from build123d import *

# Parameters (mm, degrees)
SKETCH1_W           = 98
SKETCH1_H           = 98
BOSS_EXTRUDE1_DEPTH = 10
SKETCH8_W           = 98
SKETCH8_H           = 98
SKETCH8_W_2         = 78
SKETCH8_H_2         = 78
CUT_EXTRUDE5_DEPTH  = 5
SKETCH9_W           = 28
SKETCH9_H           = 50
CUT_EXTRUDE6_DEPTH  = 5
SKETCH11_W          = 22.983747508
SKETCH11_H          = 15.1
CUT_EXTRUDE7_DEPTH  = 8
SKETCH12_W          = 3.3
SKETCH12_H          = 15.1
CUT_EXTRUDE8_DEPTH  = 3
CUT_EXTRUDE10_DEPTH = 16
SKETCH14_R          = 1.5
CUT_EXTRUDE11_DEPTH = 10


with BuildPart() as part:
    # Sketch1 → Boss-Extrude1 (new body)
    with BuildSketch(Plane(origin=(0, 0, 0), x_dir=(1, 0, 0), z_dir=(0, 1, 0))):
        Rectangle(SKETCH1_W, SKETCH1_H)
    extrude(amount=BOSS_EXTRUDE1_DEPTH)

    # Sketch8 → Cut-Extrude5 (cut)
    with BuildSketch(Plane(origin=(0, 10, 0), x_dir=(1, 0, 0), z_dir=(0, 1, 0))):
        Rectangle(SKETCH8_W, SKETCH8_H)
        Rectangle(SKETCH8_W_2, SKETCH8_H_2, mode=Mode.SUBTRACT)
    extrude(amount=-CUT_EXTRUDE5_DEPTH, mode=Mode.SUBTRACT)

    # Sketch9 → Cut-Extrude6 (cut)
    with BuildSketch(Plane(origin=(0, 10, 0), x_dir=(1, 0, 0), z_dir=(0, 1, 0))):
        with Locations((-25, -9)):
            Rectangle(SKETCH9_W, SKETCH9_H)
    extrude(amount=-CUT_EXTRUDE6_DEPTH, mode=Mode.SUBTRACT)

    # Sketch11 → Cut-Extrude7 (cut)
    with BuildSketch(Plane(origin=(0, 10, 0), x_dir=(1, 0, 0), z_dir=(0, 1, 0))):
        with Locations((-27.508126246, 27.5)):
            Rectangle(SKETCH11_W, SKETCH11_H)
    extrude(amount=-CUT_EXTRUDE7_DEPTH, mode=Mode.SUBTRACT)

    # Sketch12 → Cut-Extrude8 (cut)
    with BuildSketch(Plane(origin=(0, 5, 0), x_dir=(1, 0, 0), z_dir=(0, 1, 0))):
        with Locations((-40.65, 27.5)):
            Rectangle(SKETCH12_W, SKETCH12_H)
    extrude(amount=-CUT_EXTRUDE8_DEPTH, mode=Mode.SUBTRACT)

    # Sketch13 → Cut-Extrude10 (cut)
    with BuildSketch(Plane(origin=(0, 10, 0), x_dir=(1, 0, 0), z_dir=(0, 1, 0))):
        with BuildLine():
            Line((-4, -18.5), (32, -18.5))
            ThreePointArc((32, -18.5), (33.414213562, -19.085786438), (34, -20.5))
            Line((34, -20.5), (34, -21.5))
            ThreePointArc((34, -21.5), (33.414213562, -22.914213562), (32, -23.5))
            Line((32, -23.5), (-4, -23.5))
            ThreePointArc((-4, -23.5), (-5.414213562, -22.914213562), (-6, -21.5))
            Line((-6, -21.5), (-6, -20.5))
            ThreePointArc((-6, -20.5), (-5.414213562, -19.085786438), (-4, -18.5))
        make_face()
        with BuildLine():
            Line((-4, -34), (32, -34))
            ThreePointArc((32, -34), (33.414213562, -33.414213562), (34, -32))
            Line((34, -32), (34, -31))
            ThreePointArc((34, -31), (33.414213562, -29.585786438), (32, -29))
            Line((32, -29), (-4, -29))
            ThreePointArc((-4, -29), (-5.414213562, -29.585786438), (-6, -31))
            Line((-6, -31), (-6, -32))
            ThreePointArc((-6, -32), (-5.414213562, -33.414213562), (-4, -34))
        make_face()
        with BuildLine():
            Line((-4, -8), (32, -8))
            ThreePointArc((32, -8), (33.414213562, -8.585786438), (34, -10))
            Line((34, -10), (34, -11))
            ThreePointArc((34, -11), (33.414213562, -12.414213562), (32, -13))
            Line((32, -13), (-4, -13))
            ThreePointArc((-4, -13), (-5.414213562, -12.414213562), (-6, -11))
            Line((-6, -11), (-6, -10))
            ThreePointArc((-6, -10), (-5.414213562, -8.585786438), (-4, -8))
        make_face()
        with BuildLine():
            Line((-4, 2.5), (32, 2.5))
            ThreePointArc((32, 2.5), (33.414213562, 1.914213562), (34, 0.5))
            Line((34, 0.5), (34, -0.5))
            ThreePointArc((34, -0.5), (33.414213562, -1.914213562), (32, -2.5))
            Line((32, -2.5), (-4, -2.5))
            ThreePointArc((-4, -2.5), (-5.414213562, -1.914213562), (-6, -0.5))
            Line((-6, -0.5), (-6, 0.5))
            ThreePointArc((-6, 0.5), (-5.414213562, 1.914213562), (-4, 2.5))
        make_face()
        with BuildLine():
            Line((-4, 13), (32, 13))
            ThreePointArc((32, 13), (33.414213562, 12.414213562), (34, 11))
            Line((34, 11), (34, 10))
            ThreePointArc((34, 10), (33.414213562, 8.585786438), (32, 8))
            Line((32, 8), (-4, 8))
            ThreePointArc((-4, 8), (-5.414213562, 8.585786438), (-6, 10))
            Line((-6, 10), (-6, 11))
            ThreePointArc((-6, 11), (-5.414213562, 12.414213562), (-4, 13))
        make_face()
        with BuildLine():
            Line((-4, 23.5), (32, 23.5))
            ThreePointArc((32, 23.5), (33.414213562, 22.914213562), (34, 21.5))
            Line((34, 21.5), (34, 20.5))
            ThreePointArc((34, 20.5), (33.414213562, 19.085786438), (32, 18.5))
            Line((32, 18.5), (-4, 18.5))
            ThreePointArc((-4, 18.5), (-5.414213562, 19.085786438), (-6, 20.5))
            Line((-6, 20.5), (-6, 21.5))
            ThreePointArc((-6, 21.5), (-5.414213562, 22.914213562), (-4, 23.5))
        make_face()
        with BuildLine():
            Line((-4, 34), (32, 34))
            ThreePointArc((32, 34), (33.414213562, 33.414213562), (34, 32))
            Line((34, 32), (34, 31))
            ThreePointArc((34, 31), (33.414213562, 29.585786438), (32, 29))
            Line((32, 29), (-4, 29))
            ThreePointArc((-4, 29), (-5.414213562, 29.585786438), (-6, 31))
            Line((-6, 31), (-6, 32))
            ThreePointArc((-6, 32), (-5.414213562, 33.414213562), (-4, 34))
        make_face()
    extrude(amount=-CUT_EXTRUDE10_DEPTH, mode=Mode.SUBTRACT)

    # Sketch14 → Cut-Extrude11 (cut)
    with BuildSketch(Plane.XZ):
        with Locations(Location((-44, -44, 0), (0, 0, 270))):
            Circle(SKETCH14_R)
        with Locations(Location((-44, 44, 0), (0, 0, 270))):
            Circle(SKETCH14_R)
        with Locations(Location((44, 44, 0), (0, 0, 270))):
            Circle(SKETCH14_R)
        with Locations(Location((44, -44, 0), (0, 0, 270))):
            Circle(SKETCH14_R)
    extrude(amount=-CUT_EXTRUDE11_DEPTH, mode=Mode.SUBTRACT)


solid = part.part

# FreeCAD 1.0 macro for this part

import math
import FreeCAD as App
import Part
import Sketcher

V = App.Vector


def add_polygon(sketch, points):
    """Adds a closed chain of lines whose ends are joined by coincident constraints."""
    first, n = sketch.GeometryCount, len(points)
    for a, b in zip(points, points[1:] + points[:1]):
        sketch.addGeometry(Part.LineSegment(App.Vector(*a, 0), App.Vector(*b, 0)), False)
    for i in range(n):
        sketch.addConstraint(Sketcher.Constraint("Coincident", first + i, 2, first + (i + 1) % n, 1))

doc = App.newDocument("Part")
body = doc.addObject("PartDesign::Body", "Body")

sketch1 = body.newObject("Sketcher::SketchObject", "Sketch")
sketch1.AttachmentSupport = (doc.getObject("XZ_Plane"), [""])
sketch1.MapMode = "FlatFace"
add_polygon(sketch1, [(-49, -49), (-49, 49), (49, 49), (49, -49)])
sketch1.addConstraint([
    Sketcher.Constraint("Vertical", 0),
    Sketcher.Constraint("Horizontal", 1),
    Sketcher.Constraint("Vertical", 2),
    Sketcher.Constraint("Horizontal", 3),
    Sketcher.Constraint("Symmetric", 0, 2, 2, 2, -1, 1),
    Sketcher.Constraint("Equal", 3, 0),
    Sketcher.Constraint("DistanceX", 1, 1, 1, 2, 98.0),
])
pad1 = body.newObject("PartDesign::Pad", "Pad")
pad1.Profile = sketch1
pad1.Length = 10
pad1.Reversed = True

sketch2 = body.newObject("Sketcher::SketchObject", "Sketch001")
sketch2.AttachmentSupport = (doc.getObject("XZ_Plane"), [""])
sketch2.MapMode = "FlatFace"
sketch2.AttachmentOffset = App.Placement(V(0, 0, -10), App.Rotation())
add_polygon(sketch2, [(-49, -49), (-49, 49), (49, 49), (49, -49)])
add_polygon(sketch2, [(39, 39), (-39, 39), (-39, -39), (39, -39)])
sketch2.addConstraint([
    Sketcher.Constraint("Vertical", 0),
    Sketcher.Constraint("Horizontal", 1),
    Sketcher.Constraint("Vertical", 2),
    Sketcher.Constraint("Horizontal", 3),
    Sketcher.Constraint("Horizontal", 4),
    Sketcher.Constraint("Vertical", 5),
    Sketcher.Constraint("Horizontal", 6),
    Sketcher.Constraint("Vertical", 7),
    Sketcher.Constraint("Symmetric", 0, 2, 2, 2, -1, 1),
    Sketcher.Constraint("Symmetric", 4, 2, 6, 2, -1, 1),
    Sketcher.Constraint("Equal", 3, 0),
    Sketcher.Constraint("Equal", 6, 5),
    Sketcher.Constraint("DistanceX", 1, 1, 1, 2, 98.0),
    Sketcher.Constraint("DistanceX", 4, 2, 4, 1, 78.0),
])
pocket1 = body.newObject("PartDesign::Pocket", "Pocket")
pocket1.Profile = sketch2
pocket1.Length = 5
pocket1.Reversed = True

sketch3 = body.newObject("Sketcher::SketchObject", "Sketch002")
sketch3.AttachmentSupport = (doc.getObject("XZ_Plane"), [""])
sketch3.MapMode = "FlatFace"
sketch3.AttachmentOffset = App.Placement(V(0, 0, -10), App.Rotation())
add_polygon(sketch3, [(-39, -16), (-39, 34), (-11, 34), (-11, -16)])
sketch3.addConstraint([
    Sketcher.Constraint("Vertical", 0),
    Sketcher.Constraint("Horizontal", 1),
    Sketcher.Constraint("Vertical", 2),
    Sketcher.Constraint("Horizontal", 3),
    Sketcher.Constraint("DistanceX", 1, 1, 1, 2, 28.0),
    Sketcher.Constraint("DistanceY", 0, 1, 0, 2, 50.0),
    Sketcher.Constraint("DistanceX", 0, 2, -1, 1, 39.0),
    Sketcher.Constraint("DistanceY", -1, 1, 0, 2, 34.0),
])
pocket2 = body.newObject("PartDesign::Pocket", "Pocket001")
pocket2.Profile = sketch3
pocket2.Length = 5
pocket2.Reversed = True

sketch4 = body.newObject("Sketcher::SketchObject", "Sketch003")
sketch4.AttachmentSupport = (doc.getObject("XZ_Plane"), [""])
sketch4.MapMode = "FlatFace"
sketch4.AttachmentOffset = App.Placement(V(0, 0, -10), App.Rotation())
add_polygon(sketch4, [(-39, -35), (-39, -20), (-16, -20), (-16, -35)])
sketch4.addConstraint([
    Sketcher.Constraint("Vertical", 0),
    Sketcher.Constraint("Horizontal", 1),
    Sketcher.Constraint("Vertical", 2),
    Sketcher.Constraint("Horizontal", 3),
    Sketcher.Constraint("DistanceY", 0, 1, 0, 2, 15.1),
    Sketcher.Constraint("DistanceX", 0, 2, -1, 1, 39.0),
    Sketcher.Constraint("DistanceY", 0, 2, -1, 1, 19.95),
    Sketcher.Constraint("DistanceX", 1, 1, 1, 2, 22.983748),
])
pocket3 = body.newObject("PartDesign::Pocket", "Pocket002")
pocket3.Profile = sketch4
pocket3.Length = 8
pocket3.Reversed = True

sketch5 = body.newObject("Sketcher::SketchObject", "Sketch004")
sketch5.AttachmentSupport = (doc.getObject("XZ_Plane"), [""])
sketch5.MapMode = "FlatFace"
sketch5.AttachmentOffset = App.Placement(V(0, 0, -5), App.Rotation())
add_polygon(sketch5, [(-42.3, -35), (-42.3, -19.9), (-39, -19.9), (-39, -35)])
sketch5.addConstraint([
    Sketcher.Constraint("Vertical", 0),
    Sketcher.Constraint("Horizontal", 1),
    Sketcher.Constraint("Vertical", 2),
    Sketcher.Constraint("Horizontal", 3),
    Sketcher.Constraint("DistanceX", 1, 1, 1, 2, 3.3),
    Sketcher.Constraint("DistanceY", 0, 1, 0, 2, 15.1),
    Sketcher.Constraint("DistanceX", 1, 2, -1, 1, 39.0),
    Sketcher.Constraint("DistanceY", 0, 2, -1, 1, 19.95),
])
pocket4 = body.newObject("PartDesign::Pocket", "Pocket003")
pocket4.Profile = sketch5
pocket4.Length = 3
pocket4.Reversed = True

sketch6 = body.newObject("Sketcher::SketchObject", "Sketch005")
sketch6.AttachmentSupport = (doc.getObject("XZ_Plane"), [""])
sketch6.MapMode = "FlatFace"
sketch6.AttachmentOffset = App.Placement(V(0, 0, -10), App.Rotation())
sketch6.addGeometry([
    Part.LineSegment(V(32, 18.5, 0), V(-4, 18.5, 0)),
    Part.ArcOfCircle(Part.Circle(V(-4, 20.5, 0), V(0, 0, 1), 2), math.radians(-180), math.radians(-90)),
    Part.LineSegment(V(-6, 20.5, 0), V(-6, 21.5, 0)),
    Part.ArcOfCircle(Part.Circle(V(-4, 21.5, 0), V(0, 0, 1), 2), math.radians(90), math.radians(180)),
    Part.LineSegment(V(-4, 23.5, 0), V(32, 23.5, 0)),
    Part.ArcOfCircle(Part.Circle(V(32, 21.5, 0), V(0, 0, 1), 2), math.radians(0), math.radians(90)),
    Part.LineSegment(V(34, 21.5, 0), V(34, 20.5, 0)),
    Part.ArcOfCircle(Part.Circle(V(32, 20.5, 0), V(0, 0, 1), 2), math.radians(-90), math.radians(0)),
    Part.LineSegment(V(-4, 34, 0), V(32, 34, 0)),
    Part.ArcOfCircle(Part.Circle(V(32, 32, 0), V(0, 0, 1), 2), math.radians(0), math.radians(90)),
    Part.LineSegment(V(34, 32, 0), V(34, 31, 0)),
    Part.ArcOfCircle(Part.Circle(V(32, 31, 0), V(0, 0, 1), 2), math.radians(-90), math.radians(0)),
    Part.LineSegment(V(32, 29, 0), V(-4, 29, 0)),
    Part.ArcOfCircle(Part.Circle(V(-4, 31, 0), V(0, 0, 1), 2), math.radians(-180), math.radians(-90)),
    Part.LineSegment(V(-6, 31, 0), V(-6, 32, 0)),
    Part.ArcOfCircle(Part.Circle(V(-4, 32, 0), V(0, 0, 1), 2), math.radians(90), math.radians(180)),
    Part.LineSegment(V(32, 8, 0), V(-4, 8, 0)),
    Part.ArcOfCircle(Part.Circle(V(-4, 10, 0), V(0, 0, 1), 2), math.radians(-180), math.radians(-90)),
    Part.LineSegment(V(-6, 10, 0), V(-6, 11, 0)),
    Part.ArcOfCircle(Part.Circle(V(-4, 11, 0), V(0, 0, 1), 2), math.radians(90), math.radians(180)),
    Part.LineSegment(V(-4, 13, 0), V(32, 13, 0)),
    Part.ArcOfCircle(Part.Circle(V(32, 11, 0), V(0, 0, 1), 2), math.radians(0), math.radians(90)),
    Part.LineSegment(V(34, 11, 0), V(34, 10, 0)),
    Part.ArcOfCircle(Part.Circle(V(32, 10, 0), V(0, 0, 1), 2), math.radians(-90), math.radians(0)),
    Part.LineSegment(V(32, -2.5, 0), V(-4, -2.5, 0)),
    Part.ArcOfCircle(Part.Circle(V(-4, -0.5, 0), V(0, 0, 1), 2), math.radians(-180), math.radians(-90)),
    Part.LineSegment(V(-6, -0.5, 0), V(-6, 0.5, 0)),
    Part.ArcOfCircle(Part.Circle(V(-4, 0.5, 0), V(0, 0, 1), 2), math.radians(90), math.radians(180)),
    Part.LineSegment(V(-4, 2.5, 0), V(32, 2.5, 0)),
    Part.ArcOfCircle(Part.Circle(V(32, 0.5, 0), V(0, 0, 1), 2), math.radians(0), math.radians(90)),
    Part.LineSegment(V(34, 0.5, 0), V(34, -0.5, 0)),
    Part.ArcOfCircle(Part.Circle(V(32, -0.5, 0), V(0, 0, 1), 2), math.radians(-90), math.radians(0)),
    Part.LineSegment(V(32, -13, 0), V(-4, -13, 0)),
    Part.ArcOfCircle(Part.Circle(V(-4, -11, 0), V(0, 0, 1), 2), math.radians(-180), math.radians(-90)),
    Part.LineSegment(V(-6, -11, 0), V(-6, -10, 0)),
    Part.ArcOfCircle(Part.Circle(V(-4, -10, 0), V(0, 0, 1), 2), math.radians(90), math.radians(180)),
    Part.LineSegment(V(-4, -8, 0), V(32, -8, 0)),
    Part.ArcOfCircle(Part.Circle(V(32, -10, 0), V(0, 0, 1), 2), math.radians(0), math.radians(90)),
    Part.LineSegment(V(34, -10, 0), V(34, -11, 0)),
    Part.ArcOfCircle(Part.Circle(V(32, -11, 0), V(0, 0, 1), 2), math.radians(-90), math.radians(0)),
    Part.LineSegment(V(32, -23.5, 0), V(-4, -23.5, 0)),
    Part.ArcOfCircle(Part.Circle(V(-4, -21.5, 0), V(0, 0, 1), 2), math.radians(-180), math.radians(-90)),
    Part.LineSegment(V(-6, -21.5, 0), V(-6, -20.5, 0)),
    Part.ArcOfCircle(Part.Circle(V(-4, -20.5, 0), V(0, 0, 1), 2), math.radians(90), math.radians(180)),
    Part.LineSegment(V(-4, -18.5, 0), V(32, -18.5, 0)),
    Part.ArcOfCircle(Part.Circle(V(32, -20.5, 0), V(0, 0, 1), 2), math.radians(0), math.radians(90)),
    Part.LineSegment(V(34, -20.5, 0), V(34, -21.5, 0)),
    Part.ArcOfCircle(Part.Circle(V(32, -21.5, 0), V(0, 0, 1), 2), math.radians(-90), math.radians(0)),
    Part.LineSegment(V(32, -34, 0), V(-4, -34, 0)),
    Part.ArcOfCircle(Part.Circle(V(-4, -32, 0), V(0, 0, 1), 2), math.radians(-180), math.radians(-90)),
    Part.LineSegment(V(-6, -32, 0), V(-6, -31, 0)),
    Part.ArcOfCircle(Part.Circle(V(-4, -31, 0), V(0, 0, 1), 2), math.radians(90), math.radians(180)),
    Part.LineSegment(V(-4, -29, 0), V(32, -29, 0)),
    Part.ArcOfCircle(Part.Circle(V(32, -31, 0), V(0, 0, 1), 2), math.radians(0), math.radians(90)),
    Part.LineSegment(V(34, -31, 0), V(34, -32, 0)),
    Part.ArcOfCircle(Part.Circle(V(32, -32, 0), V(0, 0, 1), 2), math.radians(-90), math.radians(0)),
], False)
sketch6.addConstraint([
    Sketcher.Constraint("Tangent", 0, 2, 1, 2),
    Sketcher.Constraint("Tangent", 1, 1, 2, 1),
    Sketcher.Constraint("Tangent", 2, 2, 3, 2),
    Sketcher.Constraint("Tangent", 3, 1, 4, 1),
    Sketcher.Constraint("Tangent", 4, 2, 5, 2),
    Sketcher.Constraint("Tangent", 5, 1, 6, 1),
    Sketcher.Constraint("Tangent", 6, 2, 7, 2),
    Sketcher.Constraint("Tangent", 7, 1, 0, 1),
    Sketcher.Constraint("Tangent", 8, 2, 9, 2),
    Sketcher.Constraint("Tangent", 9, 1, 10, 1),
    Sketcher.Constraint("Tangent", 10, 2, 11, 2),
    Sketcher.Constraint("Tangent", 11, 1, 12, 1),
    Sketcher.Constraint("Tangent", 12, 2, 13, 2),
    Sketcher.Constraint("Tangent", 13, 1, 14, 1),
    Sketcher.Constraint("Tangent", 14, 2, 15, 2),
    Sketcher.Constraint("Tangent", 15, 1, 8, 1),
    Sketcher.Constraint("Tangent", 16, 2, 17, 2),
    Sketcher.Constraint("Tangent", 17, 1, 18, 1),
    Sketcher.Constraint("Tangent", 18, 2, 19, 2),
    Sketcher.Constraint("Tangent", 19, 1, 20, 1),
    Sketcher.Constraint("Tangent", 20, 2, 21, 2),
    Sketcher.Constraint("Tangent", 21, 1, 22, 1),
    Sketcher.Constraint("Tangent", 22, 2, 23, 2),
    Sketcher.Constraint("Tangent", 23, 1, 16, 1),
    Sketcher.Constraint("Tangent", 24, 2, 25, 2),
    Sketcher.Constraint("Tangent", 25, 1, 26, 1),
    Sketcher.Constraint("Tangent", 26, 2, 27, 2),
    Sketcher.Constraint("Tangent", 27, 1, 28, 1),
    Sketcher.Constraint("Tangent", 28, 2, 29, 2),
    Sketcher.Constraint("Tangent", 29, 1, 30, 1),
    Sketcher.Constraint("Tangent", 30, 2, 31, 2),
    Sketcher.Constraint("Tangent", 31, 1, 24, 1),
    Sketcher.Constraint("Tangent", 32, 2, 33, 2),
    Sketcher.Constraint("Tangent", 33, 1, 34, 1),
    Sketcher.Constraint("Tangent", 34, 2, 35, 2),
    Sketcher.Constraint("Tangent", 35, 1, 36, 1),
    Sketcher.Constraint("Tangent", 36, 2, 37, 2),
    Sketcher.Constraint("Tangent", 37, 1, 38, 1),
    Sketcher.Constraint("Tangent", 38, 2, 39, 2),
    Sketcher.Constraint("Tangent", 39, 1, 32, 1),
    Sketcher.Constraint("Tangent", 40, 2, 41, 2),
    Sketcher.Constraint("Tangent", 41, 1, 42, 1),
    Sketcher.Constraint("Tangent", 42, 2, 43, 2),
    Sketcher.Constraint("Tangent", 43, 1, 44, 1),
    Sketcher.Constraint("Tangent", 44, 2, 45, 2),
    Sketcher.Constraint("Tangent", 45, 1, 46, 1),
    Sketcher.Constraint("Tangent", 46, 2, 47, 2),
    Sketcher.Constraint("Tangent", 47, 1, 40, 1),
    Sketcher.Constraint("Tangent", 48, 2, 49, 2),
    Sketcher.Constraint("Tangent", 49, 1, 50, 1),
    Sketcher.Constraint("Tangent", 50, 2, 51, 2),
    Sketcher.Constraint("Tangent", 51, 1, 52, 1),
    Sketcher.Constraint("Tangent", 52, 2, 53, 2),
    Sketcher.Constraint("Tangent", 53, 1, 54, 1),
    Sketcher.Constraint("Tangent", 54, 2, 55, 2),
    Sketcher.Constraint("Tangent", 55, 1, 48, 1),
    Sketcher.Constraint("Horizontal", 0),
    Sketcher.Constraint("Vertical", 2),
    Sketcher.Constraint("Horizontal", 4),
    Sketcher.Constraint("Vertical", 6),
    Sketcher.Constraint("Horizontal", 8),
    Sketcher.Constraint("Vertical", 10),
    Sketcher.Constraint("Horizontal", 12),
    Sketcher.Constraint("Vertical", 14),
    Sketcher.Constraint("Horizontal", 16),
    Sketcher.Constraint("Vertical", 18),
    Sketcher.Constraint("Horizontal", 20),
    Sketcher.Constraint("Vertical", 22),
    Sketcher.Constraint("Horizontal", 24),
    Sketcher.Constraint("Vertical", 26),
    Sketcher.Constraint("Horizontal", 28),
    Sketcher.Constraint("Vertical", 30),
    Sketcher.Constraint("Horizontal", 32),
    Sketcher.Constraint("Vertical", 34),
    Sketcher.Constraint("Horizontal", 36),
    Sketcher.Constraint("Vertical", 38),
    Sketcher.Constraint("Horizontal", 40),
    Sketcher.Constraint("Vertical", 42),
    Sketcher.Constraint("Horizontal", 44),
    Sketcher.Constraint("Vertical", 46),
    Sketcher.Constraint("Horizontal", 48),
    Sketcher.Constraint("Vertical", 50),
    Sketcher.Constraint("Horizontal", 52),
    Sketcher.Constraint("Vertical", 54),
    Sketcher.Constraint("Equal", 1, 3),
    Sketcher.Constraint("Equal", 3, 5),
    Sketcher.Constraint("Equal", 5, 7),
    Sketcher.Constraint("Equal", 7, 9),
    Sketcher.Constraint("Equal", 9, 11),
    Sketcher.Constraint("Equal", 11, 13),
    Sketcher.Constraint("Equal", 13, 15),
    Sketcher.Constraint("Equal", 15, 17),
    Sketcher.Constraint("Equal", 17, 19),
    Sketcher.Constraint("Equal", 19, 21),
    Sketcher.Constraint("Equal", 21, 23),
    Sketcher.Constraint("Equal", 23, 25),
    Sketcher.Constraint("Equal", 25, 27),
    Sketcher.Constraint("Equal", 27, 29),
    Sketcher.Constraint("Equal", 29, 31),
    Sketcher.Constraint("Equal", 31, 33),
    Sketcher.Constraint("Equal", 33, 35),
    Sketcher.Constraint("Equal", 35, 37),
    Sketcher.Constraint("Equal", 37, 39),
    Sketcher.Constraint("Equal", 39, 41),
    Sketcher.Constraint("Equal", 41, 43),
    Sketcher.Constraint("Equal", 43, 45),
    Sketcher.Constraint("Equal", 45, 47),
    Sketcher.Constraint("Equal", 47, 49),
    Sketcher.Constraint("Equal", 49, 51),
    Sketcher.Constraint("Equal", 51, 53),
    Sketcher.Constraint("Equal", 53, 55),
    Sketcher.Constraint("Symmetric", 19, 3, 33, 3, -1),
    Sketcher.Constraint("Symmetric", 23, 3, 37, 3, -1),
    Sketcher.Constraint("Symmetric", 3, 3, 41, 3, -1),
    Sketcher.Constraint("Symmetric", 7, 3, 45, 3, -1),
    Sketcher.Constraint("Symmetric", 15, 3, 49, 3, -1),
    Sketcher.Constraint("Symmetric", 11, 3, 53, 3, -1),
    Sketcher.Constraint("Vertical", 7, 3, 9, 3),
    Sketcher.Constraint("Vertical", 3, 3, 13, 3),
    Sketcher.Constraint("Vertical", 15, 3, 17, 3),
    Sketcher.Constraint("Vertical", 11, 3, 21, 3),
    Sketcher.Constraint("Vertical", 19, 3, 25, 3),
    Sketcher.Constraint("Vertical", 23, 3, 29, 3),
    Sketcher.Constraint("Equal", 6, 10),
    Sketcher.Constraint("Equal", 14, 18),
    Sketcher.Constraint("Equal", 22, 26),
    Sketcher.Constraint("Radius", 1, 2.0),
    Sketcher.Constraint("DistanceX", 0, 2, 0, 1, 36.0),
    Sketcher.Constraint("DistanceY", 2, 1, 2, 2, 1.0),
    Sketcher.Constraint("DistanceX", 1, 3, -1, 1, 4.0),
    Sketcher.Constraint("DistanceY", -1, 1, 9, 3, 32.0),
    Sketcher.Constraint("DistanceY", -1, 1, 17, 3, 10.0),
    Sketcher.Constraint("DistanceY", -1, 1, 1, 3, 20.5),
    Sketcher.Constraint("DistanceY", 25, 3, -1, 1, 0.5),
])
pocket5 = body.newObject("PartDesign::Pocket", "Pocket004")
pocket5.Profile = sketch6
pocket5.Length = 16
pocket5.Reversed = True

sketch7 = body.newObject("Sketcher::SketchObject", "Sketch006")
sketch7.AttachmentSupport = (doc.getObject("XZ_Plane"), [""])
sketch7.MapMode = "FlatFace"
sketch7.addGeometry([
    Part.Circle(V(-44, -44, 0), V(0, 0, 1), 1.5),
    Part.Circle(V(-44, 44, 0), V(0, 0, 1), 1.5),
    Part.Circle(V(44, 44, 0), V(0, 0, 1), 1.5),
    Part.Circle(V(44, -44, 0), V(0, 0, 1), 1.5),
], False)
sketch7.addConstraint([
    Sketcher.Constraint("Equal", 0, 1),
    Sketcher.Constraint("Equal", 1, 2),
    Sketcher.Constraint("Equal", 2, 3),
    Sketcher.Constraint("Symmetric", 0, 3, 2, 3, -1, 1),
    Sketcher.Constraint("Symmetric", 1, 3, 3, 3, -1, 1),
    Sketcher.Constraint("Symmetric", 1, 3, 2, 3, -2),
    Sketcher.Constraint("Diameter", 0, 3.0),
    Sketcher.Constraint("DistanceX", 0, 3, -1, 1, 44.0),
    Sketcher.Constraint("DistanceY", 0, 3, -1, 1, 44.0),
])
pocket6 = body.newObject("PartDesign::Pocket", "Pocket005")
pocket6.Profile = sketch7
pocket6.Length = 10

doc.recompute()
